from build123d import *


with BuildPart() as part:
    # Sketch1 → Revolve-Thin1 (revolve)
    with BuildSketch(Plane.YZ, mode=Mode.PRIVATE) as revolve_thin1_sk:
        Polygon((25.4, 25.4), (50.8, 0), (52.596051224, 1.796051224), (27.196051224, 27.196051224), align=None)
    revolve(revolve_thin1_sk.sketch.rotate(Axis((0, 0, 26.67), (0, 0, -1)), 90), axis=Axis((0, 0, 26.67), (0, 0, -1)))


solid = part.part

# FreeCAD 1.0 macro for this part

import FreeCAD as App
import Part
import Sketcher
Q = App.Units.Quantity


def add_polygon(sketch, points):
    """Adds a closed chain of lines whose ends are joined by coincident constraints."""
    first, n = sketch.GeometryCount, len(points)
    for a, b in zip(points, points[1:] + points[:1]):
        sketch.addGeometry(Part.LineSegment(App.Vector(*a, 0), App.Vector(*b, 0)), False)
    for i in range(n):
        sketch.addConstraint(Sketcher.Constraint("Coincident", first + i, 2, first + (i + 1) % n, 1))

doc = App.newDocument("Part")
params = doc.addObject("Spreadsheet::Sheet", "Params")
for row, (alias, value) in enumerate([
    ("sketch1_length", "0.1 in"),
    ("revolution_angle", "360 deg"),
], start=1):
    params.set(f"A{row}", alias)
    params.set(f"B{row}", "=" + value)
    params.setAlias(f"B{row}", alias)

body = doc.addObject("PartDesign::Body", "Body")

# Sketch on YZ plane
sketch1 = body.newObject("Sketcher::SketchObject", "Sketch")
sketch1.AttachmentSupport = (doc.getObject("YZ_Plane"), [""])
sketch1.MapMode = "FlatFace"
add_polygon(sketch1, [(25.4, 25.4), (50.8, 0), (52.6, 1.8), (27.2, 27.2)])  # lines 0-3
sketch1.addConstraint([
    Sketcher.Constraint("PointOnObject", 0, 2, -1),
    Sketcher.Constraint("Perpendicular", 0, 1),
    Sketcher.Constraint("Perpendicular", 1, 2),
    Sketcher.Constraint("Perpendicular", 2, 3),
    Sketcher.Constraint("DistanceX", -1, 1, 0, 2, Q("2 in")),
    Sketcher.Constraint("DistanceX", -1, 1, 3, 2, Q("1 in")),
    Sketcher.Constraint("DistanceY", -1, 1, 3, 2, Q("1 in")),
    Sketcher.Constraint("Distance", 1, Q("0.1 in")),
])
sketch1.setExpression("Constraints[11]", "Params.sketch1_length")
revolution = body.newObject("PartDesign::Revolution", "Revolution")
revolution.Profile = sketch1
revolution.ReferenceAxis = (sketch1, ["V_Axis"])
revolution.setExpression("Angle", "Params.revolution_angle")

doc.recompute()
